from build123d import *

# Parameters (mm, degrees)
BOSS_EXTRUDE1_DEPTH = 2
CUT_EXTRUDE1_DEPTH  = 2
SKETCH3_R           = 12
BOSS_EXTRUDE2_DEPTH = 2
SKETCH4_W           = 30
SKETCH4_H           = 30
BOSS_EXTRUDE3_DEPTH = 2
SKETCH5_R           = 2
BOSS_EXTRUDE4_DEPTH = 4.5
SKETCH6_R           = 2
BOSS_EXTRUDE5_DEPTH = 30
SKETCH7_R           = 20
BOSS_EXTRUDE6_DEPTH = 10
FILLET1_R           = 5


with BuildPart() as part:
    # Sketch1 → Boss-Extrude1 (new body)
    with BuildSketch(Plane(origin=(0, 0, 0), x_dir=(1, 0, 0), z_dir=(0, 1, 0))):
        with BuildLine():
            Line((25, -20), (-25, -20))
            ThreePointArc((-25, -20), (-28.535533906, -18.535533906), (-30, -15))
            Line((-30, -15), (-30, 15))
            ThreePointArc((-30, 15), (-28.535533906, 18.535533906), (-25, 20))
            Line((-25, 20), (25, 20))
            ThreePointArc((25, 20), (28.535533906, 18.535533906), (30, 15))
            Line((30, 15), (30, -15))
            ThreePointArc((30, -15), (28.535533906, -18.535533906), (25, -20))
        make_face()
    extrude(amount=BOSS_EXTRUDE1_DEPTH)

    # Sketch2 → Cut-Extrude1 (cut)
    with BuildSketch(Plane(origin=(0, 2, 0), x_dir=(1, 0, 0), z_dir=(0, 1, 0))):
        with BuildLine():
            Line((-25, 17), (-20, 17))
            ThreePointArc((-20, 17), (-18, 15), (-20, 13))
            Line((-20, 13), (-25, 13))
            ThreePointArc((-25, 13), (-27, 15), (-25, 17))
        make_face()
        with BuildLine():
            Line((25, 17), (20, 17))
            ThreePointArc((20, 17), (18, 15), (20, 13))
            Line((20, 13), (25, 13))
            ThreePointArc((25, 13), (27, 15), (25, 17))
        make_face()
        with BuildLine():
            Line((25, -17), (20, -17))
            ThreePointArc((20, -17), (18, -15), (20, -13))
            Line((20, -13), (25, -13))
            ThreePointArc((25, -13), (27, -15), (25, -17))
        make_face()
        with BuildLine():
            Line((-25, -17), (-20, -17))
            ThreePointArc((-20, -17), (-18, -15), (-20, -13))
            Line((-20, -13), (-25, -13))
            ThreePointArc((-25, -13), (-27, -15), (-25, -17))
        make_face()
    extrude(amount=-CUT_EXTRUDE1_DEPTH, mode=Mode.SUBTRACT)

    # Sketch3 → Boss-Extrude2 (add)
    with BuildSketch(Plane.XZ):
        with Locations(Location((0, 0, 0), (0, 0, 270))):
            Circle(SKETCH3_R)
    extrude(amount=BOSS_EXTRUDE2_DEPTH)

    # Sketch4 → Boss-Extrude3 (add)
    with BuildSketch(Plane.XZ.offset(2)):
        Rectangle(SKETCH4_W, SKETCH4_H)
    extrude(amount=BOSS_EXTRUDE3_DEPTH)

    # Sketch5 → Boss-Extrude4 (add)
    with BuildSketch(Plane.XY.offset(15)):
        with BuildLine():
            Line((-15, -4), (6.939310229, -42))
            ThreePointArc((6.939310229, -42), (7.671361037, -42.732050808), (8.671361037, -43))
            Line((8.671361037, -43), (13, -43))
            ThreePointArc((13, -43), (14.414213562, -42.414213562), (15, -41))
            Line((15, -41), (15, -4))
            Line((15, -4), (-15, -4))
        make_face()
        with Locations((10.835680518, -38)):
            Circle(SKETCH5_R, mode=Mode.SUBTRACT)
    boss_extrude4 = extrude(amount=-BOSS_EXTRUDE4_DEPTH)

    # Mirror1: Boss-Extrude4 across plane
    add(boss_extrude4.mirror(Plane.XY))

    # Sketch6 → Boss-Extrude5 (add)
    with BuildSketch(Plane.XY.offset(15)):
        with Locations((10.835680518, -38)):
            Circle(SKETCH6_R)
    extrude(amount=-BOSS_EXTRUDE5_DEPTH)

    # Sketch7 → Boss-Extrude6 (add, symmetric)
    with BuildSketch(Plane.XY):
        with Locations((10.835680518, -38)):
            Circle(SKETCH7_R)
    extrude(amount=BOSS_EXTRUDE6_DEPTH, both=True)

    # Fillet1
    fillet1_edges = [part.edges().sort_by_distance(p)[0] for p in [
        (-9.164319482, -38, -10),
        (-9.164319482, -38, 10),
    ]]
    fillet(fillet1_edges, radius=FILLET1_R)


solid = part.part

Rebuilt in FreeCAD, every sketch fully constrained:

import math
import FreeCAD as App
import Part
import Sketcher
Q = App.Units.Quantity


def edges_at(feature, points):
    """Names of the edges that pass closest to the given points."""
    edges = feature.Shape.Edges
    near = lambda p: min(range(len(edges)), key=lambda i: edges[i].distToShape(Part.Vertex(*p))[0])
    return sorted({f"Edge{near(p) + 1}" for p in points})

doc = App.newDocument("Part")
params = doc.addObject("Spreadsheet::Sheet", "Params")
for row, (alias, value) in enumerate([
    ("sketch1_radius", "5 mm"),
    ("sketch1_width", "50 mm"),
    ("sketch1_height", "30 mm"),
    ("pad1_length", "2 mm"),
    ("sketch2_radius", "2 mm"),
    ("sketch2_width", "5 mm"),
    ("pocket1_length", "2 mm"),
    ("sketch3_diameter", "24 mm"),
    ("pad2_length", "2 mm"),
    ("sketch4_width", "30 mm"),
    ("pad3_length", "2 mm"),
    ("sketch5_diameter", "4 mm"),
    ("sketch5_width", "30 mm"),
    ("sketch5_height", "37 mm"),
    ("pad4_length", "4.5 mm"),
    ("sketch6_diameter", "4 mm"),
    ("pad5_length", "30 mm"),
    ("sketch7_diameter", "40 mm"),
    ("pad6_length", "20 mm"),
    ("fillet_radius", "5 mm"),
], start=1):
    params.set(f"A{row}", alias)
    params.set(f"B{row}", "=" + value)
    params.setAlias(f"B{row}", alias)

body = doc.addObject("PartDesign::Body", "Body")

# Sketch on XZ plane
sketch1 = body.newObject("Sketcher::SketchObject", "Sketch")
sketch1.AttachmentSupport = (doc.getObject("XZ_Plane"), [""])
sketch1.MapMode = "FlatFace"
sketch1.addGeometry(Part.LineSegment(App.Vector(-25, 20, 0), App.Vector(25, 20, 0)), False)
sketch1.addGeometry(Part.ArcOfCircle(Part.Circle(App.Vector(25, 15, 0), App.Vector(0, 0, 1), 5), math.radians(0), math.radians(90)), False)
sketch1.addGeometry(Part.LineSegment(App.Vector(30, 15, 0), App.Vector(30, -15, 0)), False)
sketch1.addGeometry(Part.ArcOfCircle(Part.Circle(App.Vector(25, -15, 0), App.Vector(0, 0, 1), 5), math.radians(-90), math.radians(0)), False)
sketch1.addGeometry(Part.LineSegment(App.Vector(25, -20, 0), App.Vector(-25, -20, 0)), False)
sketch1.addGeometry(Part.ArcOfCircle(Part.Circle(App.Vector(-25, -15, 0), App.Vector(0, 0, 1), 5), math.radians(180), math.radians(270)), False)
sketch1.addGeometry(Part.LineSegment(App.Vector(-30, -15, 0), App.Vector(-30, 15, 0)), False)
sketch1.addGeometry(Part.ArcOfCircle(Part.Circle(App.Vector(-25, 15, 0), App.Vector(0, 0, 1), 5), math.radians(90), math.radians(180)), False)
sketch1.addConstraint(Sketcher.Constraint("Tangent", 0, 2, 1, 2))
sketch1.addConstraint(Sketcher.Constraint("Tangent", 1, 1, 2, 1))
sketch1.addConstraint(Sketcher.Constraint("Tangent", 2, 2, 3, 2))
sketch1.addConstraint(Sketcher.Constraint("Tangent", 3, 1, 4, 1))
sketch1.addConstraint(Sketcher.Constraint("Tangent", 4, 2, 5, 2))
sketch1.addConstraint(Sketcher.Constraint("Tangent", 5, 1, 6, 1))
sketch1.addConstraint(Sketcher.Constraint("Tangent", 6, 2, 7, 2))
sketch1.addConstraint(Sketcher.Constraint("Tangent", 7, 1, 0, 1))
sketch1.addConstraint(Sketcher.Constraint("Horizontal", 0))
sketch1.addConstraint(Sketcher.Constraint("Vertical", 2))
sketch1.addConstraint(Sketcher.Constraint("Horizontal", 4))
sketch1.addConstraint(Sketcher.Constraint("Vertical", 6))
sketch1.addConstraint(Sketcher.Constraint("Equal", 1, 3))
sketch1.addConstraint(Sketcher.Constraint("Equal", 3, 5))
sketch1.addConstraint(Sketcher.Constraint("Equal", 5, 7))
sketch1.addConstraint(Sketcher.Constraint("Symmetric", 1, 3, 5, 3, -1, 1))
sketch1.addConstraint(Sketcher.Constraint("Radius", 1, 5.0))
sketch1.addConstraint(Sketcher.Constraint("DistanceX", 0, 1, 0, 2, 50.0))
sketch1.addConstraint(Sketcher.Constraint("DistanceY", 2, 2, 2, 1, 30.0))
sketch1.setExpression("Constraints[16]", "Params.sketch1_radius")
sketch1.setExpression("Constraints[17]", "Params.sketch1_width")
sketch1.setExpression("Constraints[18]", "Params.sketch1_height")
pad1 = body.newObject("PartDesign::Pad", "Pad")
pad1.Profile = sketch1
pad1.setExpression("Length", "Params.pad1_length")
pad1.Reversed = True

# Sketch on XZ plane
sketch2 = body.newObject("Sketcher::SketchObject", "Sketch001")
sketch2.AttachmentSupport = (doc.getObject("XZ_Plane"), [""])
sketch2.MapMode = "FlatFace"
sketch2.AttachmentOffset = App.Placement(App.Vector(0, 0, -2), App.Rotation())
sketch2.addGeometry(Part.LineSegment(App.Vector(-20, -17, 0), App.Vector(-25, -17, 0)), False)
sketch2.addGeometry(Part.ArcOfCircle(Part.Circle(App.Vector(-25, -15, 0), App.Vector(0, 0, 1), 2), math.radians(90), math.radians(270)), False)
sketch2.addGeometry(Part.LineSegment(App.Vector(-25, -13, 0), App.Vector(-20, -13, 0)), False)
sketch2.addGeometry(Part.ArcOfCircle(Part.Circle(App.Vector(-20, -15, 0), App.Vector(0, 0, 1), 2), math.radians(-90), math.radians(90)), False)
sketch2.addGeometry(Part.LineSegment(App.Vector(25, -17, 0), App.Vector(20, -17, 0)), False)
sketch2.addGeometry(Part.ArcOfCircle(Part.Circle(App.Vector(20, -15, 0), App.Vector(0, 0, 1), 2), math.radians(90), math.radians(270)), False)
sketch2.addGeometry(Part.LineSegment(App.Vector(20, -13, 0), App.Vector(25, -13, 0)), False)
sketch2.addGeometry(Part.ArcOfCircle(Part.Circle(App.Vector(25, -15, 0), App.Vector(0, 0, 1), 2), math.radians(-90), math.radians(90)), False)
sketch2.addGeometry(Part.LineSegment(App.Vector(20, 17, 0), App.Vector(25, 17, 0)), False)
sketch2.addGeometry(Part.ArcOfCircle(Part.Circle(App.Vector(25, 15, 0), App.Vector(0, 0, 1), 2), math.radians(-90), math.radians(90)), False)
sketch2.addGeometry(Part.LineSegment(App.Vector(25, 13, 0), App.Vector(20, 13, 0)), False)
sketch2.addGeometry(Part.ArcOfCircle(Part.Circle(App.Vector(20, 15, 0), App.Vector(0, 0, 1), 2), math.radians(90), math.radians(270)), False)
sketch2.addGeometry(Part.LineSegment(App.Vector(-25, 17, 0), App.Vector(-20, 17, 0)), False)
sketch2.addGeometry(Part.ArcOfCircle(Part.Circle(App.Vector(-20, 15, 0), App.Vector(0, 0, 1), 2), math.radians(-90), math.radians(90)), False)
sketch2.addGeometry(Part.LineSegment(App.Vector(-20, 13, 0), App.Vector(-25, 13, 0)), False)
sketch2.addGeometry(Part.ArcOfCircle(Part.Circle(App.Vector(-25, 15, 0), App.Vector(0, 0, 1), 2), math.radians(90), math.radians(270)), False)
sketch2.addConstraint(Sketcher.Constraint("Tangent", 0, 2, 1, 2))
sketch2.addConstraint(Sketcher.Constraint("Tangent", 1, 1, 2, 1))
sketch2.addConstraint(Sketcher.Constraint("Tangent", 2, 2, 3, 2))
sketch2.addConstraint(Sketcher.Constraint("Tangent", 3, 1, 0, 1))
sketch2.addConstraint(Sketcher.Constraint("Tangent", 4, 2, 5, 2))
sketch2.addConstraint(Sketcher.Constraint("Tangent", 5, 1, 6, 1))
sketch2.addConstraint(Sketcher.Constraint("Tangent", 6, 2, 7, 2))
sketch2.addConstraint(Sketcher.Constraint("Tangent", 7, 1, 4, 1))
sketch2.addConstraint(Sketcher.Constraint("Tangent", 8, 2, 9, 2))
sketch2.addConstraint(Sketcher.Constraint("Tangent", 9, 1, 10, 1))
sketch2.addConstraint(Sketcher.Constraint("Tangent", 10, 2, 11, 2))
sketch2.addConstraint(Sketcher.Constraint("Tangent", 11, 1, 8, 1))
sketch2.addConstraint(Sketcher.Constraint("Tangent", 12, 2, 13, 2))
sketch2.addConstraint(Sketcher.Constraint("Tangent", 13, 1, 14, 1))
sketch2.addConstraint(Sketcher.Constraint("Tangent", 14, 2, 15, 2))
sketch2.addConstraint(Sketcher.Constraint("Tangent", 15, 1, 12, 1))
sketch2.addConstraint(Sketcher.Constraint("Horizontal", 0))
sketch2.addConstraint(Sketcher.Constraint("Horizontal", 2))
sketch2.addConstraint(Sketcher.Constraint("Horizontal", 4))
sketch2.addConstraint(Sketcher.Constraint("Horizontal", 6))
sketch2.addConstraint(Sketcher.Constraint("Horizontal", 8))
sketch2.addConstraint(Sketcher.Constraint("Horizontal", 10))
sketch2.addConstraint(Sketcher.Constraint("Horizontal", 12))
sketch2.addConstraint(Sketcher.Constraint("Horizontal", 14))
sketch2.addConstraint(Sketcher.Constraint("Equal", 3, 5))
sketch2.addConstraint(Sketcher.Constraint("Equal", 7, 9))
sketch2.addConstraint(Sketcher.Constraint("Equal", 11, 13))
sketch2.addConstraint(Sketcher.Constraint("Symmetric", 1, 3, 9, 3, -1, 1))
sketch2.addConstraint(Sketcher.Constraint("Symmetric", 5, 3, 13, 3, -1, 1))
sketch2.addConstraint(Sketcher.Constraint("Symmetric", 3, 3, 5, 3, -2))
sketch2.addConstraint(Sketcher.Constraint("Vertical", 7, 3, 9, 3))
sketch2.addConstraint(Sketcher.Constraint("Vertical", 5, 3, 11, 3))
sketch2.addConstraint(Sketcher.Constraint("Vertical", 1, 3, 15, 3))
sketch2.addConstraint(Sketcher.Constraint("Radius", 1, 2.0))
sketch2.addConstraint(Sketcher.Constraint("DistanceX", 0, 2, 0, 1, 5.0))
sketch2.addConstraint(Sketcher.Constraint("DistanceX", 1, 3, -1, 1, 25.0))
sketch2.addConstraint(Sketcher.Constraint("DistanceY", 1, 3, -1, 1, 15.0))
sketch2.setExpression("Constraints[33]", "Params.sketch2_radius")
sketch2.setExpression("Constraints[34]", "Params.sketch2_width")
pocket1 = body.newObject("PartDesign::Pocket", "Pocket")
pocket1.Profile = sketch2
pocket1.setExpression("Length", "Params.pocket1_length")
pocket1.Reversed = True

# Sketch on XZ plane
sketch3 = body.newObject("Sketcher::SketchObject", "Sketch002")
sketch3.AttachmentSupport = (doc.getObject("XZ_Plane"), [""])
sketch3.MapMode = "FlatFace"
sketch3.addGeometry(Part.Circle(App.Vector(0, 0, 0), App.Vector(0, 0, 1), 12), False)
sketch3.addConstraint(Sketcher.Constraint("Coincident", 0, 3, -1, 1))
sketch3.addConstraint(Sketcher.Constraint("Diameter", 0, 24.0))
sketch3.setExpression("Constraints[1]", "Params.sketch3_diameter")
pad2 = body.newObject("PartDesign::Pad", "Pad001")
pad2.Profile = sketch3
pad2.setExpression("Length", "Params.pad2_length")

# Sketch on XZ plane
sketch4 = body.newObject("Sketcher::SketchObject", "Sketch003")
sketch4.AttachmentSupport = (doc.getObject("XZ_Plane"), [""])
sketch4.MapMode = "FlatFace"
sketch4.AttachmentOffset = App.Placement(App.Vector(0, 0, 2), App.Rotation())
sketch4.addGeometry(Part.LineSegment(App.Vector(-15, 15, 0), App.Vector(-15, -15, 0)), False)
sketch4.addGeometry(Part.LineSegment(App.Vector(-15, -15, 0), App.Vector(15, -15, 0)), False)
sketch4.addGeometry(Part.LineSegment(App.Vector(15, -15, 0), App.Vector(15, 15, 0)), False)
sketch4.addGeometry(Part.LineSegment(App.Vector(15, 15, 0), App.Vector(-15, 15, 0)), False)
sketch4.addConstraint(Sketcher.Constraint("Coincident", 0, 2, 1, 1))
sketch4.addConstraint(Sketcher.Constraint("Coincident", 1, 2, 2, 1))
sketch4.addConstraint(Sketcher.Constraint("Coincident", 2, 2, 3, 1))
sketch4.addConstraint(Sketcher.Constraint("Coincident", 3, 2, 0, 1))
sketch4.addConstraint(Sketcher.Constraint("Vertical", 0))
sketch4.addConstraint(Sketcher.Constraint("Horizontal", 1))
sketch4.addConstraint(Sketcher.Constraint("Vertical", 2))
sketch4.addConstraint(Sketcher.Constraint("Horizontal", 3))
sketch4.addConstraint(Sketcher.Constraint("Symmetric", 0, 2, 2, 2, -1, 1))
sketch4.addConstraint(Sketcher.Constraint("Equal", 3, 0))
sketch4.addConstraint(Sketcher.Constraint("DistanceX", 1, 1, 1, 2, 30.0))
sketch4.setExpression("Constraints[10]", "Params.sketch4_width")
pad3 = body.newObject("PartDesign::Pad", "Pad002")
pad3.Profile = sketch4
pad3.setExpression("Length", "Params.pad3_length")

# Sketch on XY plane
sketch5 = body.newObject("Sketcher::SketchObject", "Sketch004")
sketch5.AttachmentSupport = (doc.getObject("XY_Plane"), [""])
sketch5.MapMode = "FlatFace"
sketch5.AttachmentOffset = App.Placement(App.Vector(0, 0, 15), App.Rotation())
sketch5.addGeometry(Part.LineSegment(App.Vector(-15, -4, 0), App.Vector(6.9, -42, 0)), False)
sketch5.addGeometry(Part.ArcOfCircle(Part.Circle(App.Vector(8.7, -41, 0), App.Vector(0, 0, 1), 2), math.radians(-150), math.radians(-90)), False)
sketch5.addGeometry(Part.LineSegment(App.Vector(8.7, -43, 0), App.Vector(13, -43, 0)), False)
sketch5.addGeometry(Part.ArcOfCircle(Part.Circle(App.Vector(13, -41, 0), App.Vector(0, 0, 1), 2), math.radians(-90), math.radians(0)), False)
sketch5.addGeometry(Part.LineSegment(App.Vector(15, -41, 0), App.Vector(15, -4, 0)), False)
sketch5.addGeometry(Part.LineSegment(App.Vector(15, -4, 0), App.Vector(-15, -4, 0)), False)
sketch5.addGeometry(Part.Circle(App.Vector(10.8, -38, 0), App.Vector(0, 0, 1), 2), False)
sketch5.addConstraint(Sketcher.Constraint("Tangent", 0, 2, 1, 1))
sketch5.addConstraint(Sketcher.Constraint("Tangent", 1, 2, 2, 1))
sketch5.addConstraint(Sketcher.Constraint("Tangent", 2, 2, 3, 1))
sketch5.addConstraint(Sketcher.Constraint("Tangent", 3, 2, 4, 1))
sketch5.addConstraint(Sketcher.Constraint("Coincident", 4, 2, 5, 1))
sketch5.addConstraint(Sketcher.Constraint("Coincident", 5, 2, 0, 1))
sketch5.addConstraint(Sketcher.Constraint("Horizontal", 2))
sketch5.addConstraint(Sketcher.Constraint("Vertical", 4))
sketch5.addConstraint(Sketcher.Constraint("Horizontal", 5))
sketch5.addConstraint(Sketcher.Constraint("Equal", 1, 3))
sketch5.addConstraint(Sketcher.Constraint("Equal", 3, 6))
sketch5.addConstraint(Sketcher.Constraint("Diameter", 6, 4.0))
sketch5.addConstraint(Sketcher.Constraint("DistanceX", 5, 2, 5, 1, 30.0))
sketch5.addConstraint(Sketcher.Constraint("DistanceY", 4, 1, 4, 2, 37.0))
sketch5.addConstraint(Sketcher.Constraint("Angle", 0, Q("-60 deg")))
sketch5.addConstraint(Sketcher.Constraint("DistanceY", 1, 3, -1, 1, 41.0))
sketch5.addConstraint(Sketcher.Constraint("DistanceX", -1, 1, 3, 3, 13.0))
sketch5.addConstraint(Sketcher.Constraint("DistanceY", 6, 3, -1, 1, 38.0))
sketch5.addConstraint(Sketcher.Constraint("DistanceX", -1, 1, 6, 3, 10.835681))
sketch5.setExpression("Constraints[11]", "Params.sketch5_diameter")
sketch5.setExpression("Constraints[12]", "Params.sketch5_width")
sketch5.setExpression("Constraints[13]", "Params.sketch5_height")
pad4 = body.newObject("PartDesign::Pad", "Pad003")
pad4.Profile = sketch5
pad4.setExpression("Length", "Params.pad4_length")
pad4.Reversed = True
doc.recompute()

mirrored = body.newObject("PartDesign::Mirrored", "Mirrored")
mirrored.Originals = [pad4]
mirrored.MirrorPlane = (doc.getObject("XY_Plane"), [""])
body.Tip = mirrored

# Sketch on XY plane
sketch6 = body.newObject("Sketcher::SketchObject", "Sketch005")
sketch6.AttachmentSupport = (doc.getObject("XY_Plane"), [""])
sketch6.MapMode = "FlatFace"
sketch6.AttachmentOffset = App.Placement(App.Vector(0, 0, 15), App.Rotation())
sketch6.addGeometry(Part.Circle(App.Vector(10.8, -38, 0), App.Vector(0, 0, 1), 2), False)
sketch6.addConstraint(Sketcher.Constraint("Diameter", 0, 4.0))
sketch6.addConstraint(Sketcher.Constraint("DistanceY", 0, 3, -1, 1, 38.0))
sketch6.addConstraint(Sketcher.Constraint("DistanceX", -1, 1, 0, 3, 10.835681))
sketch6.setExpression("Constraints[0]", "Params.sketch6_diameter")
pad5 = body.newObject("PartDesign::Pad", "Pad004")
pad5.Profile = sketch6
pad5.setExpression("Length", "Params.pad5_length")
pad5.Reversed = True

# Sketch on XY plane
sketch7 = body.newObject("Sketcher::SketchObject", "Sketch006")
sketch7.AttachmentSupport = (doc.getObject("XY_Plane"), [""])
sketch7.MapMode = "FlatFace"
sketch7.addGeometry(Part.Circle(App.Vector(11, -38, 0), App.Vector(0, 0, 1), 20), False)
sketch7.addConstraint(Sketcher.Constraint("Diameter", 0, 40.0))
sketch7.addConstraint(Sketcher.Constraint("DistanceY", 0, 3, -1, 1, 38.0))
sketch7.addConstraint(Sketcher.Constraint("DistanceX", -1, 1, 0, 3, 10.835681))
sketch7.setExpression("Constraints[0]", "Params.sketch7_diameter")
pad6 = body.newObject("PartDesign::Pad", "Pad005")
pad6.Profile = sketch7
pad6.setExpression("Length", "Params.pad6_length")
pad6.Midplane = True
doc.recompute()

fillet = body.newObject("PartDesign::Fillet", "Fillet")
fillet.Base = (pad6, edges_at(pad6, [(-9.164, -38, -10), (-9.164, -38, 10)]))
fillet.setExpression("Radius", "Params.fillet_radius")

doc.recompute()
